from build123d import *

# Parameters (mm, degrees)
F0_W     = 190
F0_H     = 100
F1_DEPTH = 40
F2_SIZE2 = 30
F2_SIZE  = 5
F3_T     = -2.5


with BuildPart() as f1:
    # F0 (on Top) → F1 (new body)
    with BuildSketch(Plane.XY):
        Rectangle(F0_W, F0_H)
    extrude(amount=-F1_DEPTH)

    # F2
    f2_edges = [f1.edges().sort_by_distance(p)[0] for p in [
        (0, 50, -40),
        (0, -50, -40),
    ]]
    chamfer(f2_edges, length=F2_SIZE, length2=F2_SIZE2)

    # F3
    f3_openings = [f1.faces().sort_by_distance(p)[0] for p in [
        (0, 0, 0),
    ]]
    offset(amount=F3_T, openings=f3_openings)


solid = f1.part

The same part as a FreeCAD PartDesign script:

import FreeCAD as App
import Part
import Sketcher
Q = App.Units.Quantity


def edges_at(feature, points):
    """Names of the edges that pass closest to the given points."""
    edges = feature.Shape.Edges
    near = lambda p: min(range(len(edges)), key=lambda i: edges[i].distToShape(Part.Vertex(*p))[0])
    return sorted({f"Edge{near(p) + 1}" for p in points})


def faces_at(feature, points):
    """Names of the faces that lie closest to the given points."""
    faces = feature.Shape.Faces
    near = lambda p: min(range(len(faces)), key=lambda i: faces[i].distToShape(Part.Vertex(*p))[0])
    return sorted({f"Face{near(p) + 1}" for p in points})


def add_polygon(sketch, points):
    """Adds a closed chain of lines whose ends are joined by coincident constraints."""
    first, n = sketch.GeometryCount, len(points)
    for a, b in zip(points, points[1:] + points[:1]):
        sketch.addGeometry(Part.LineSegment(App.Vector(*a, 0), App.Vector(*b, 0)), False)
    for i in range(n):
        sketch.addConstraint(Sketcher.Constraint("Coincident", first + i, 2, first + (i + 1) % n, 1))

doc = App.newDocument("Part")
body = doc.addObject("PartDesign::Body", "Body")

sketch1 = body.newObject("Sketcher::SketchObject", "Sketch")
sketch1.AttachmentSupport = (doc.getObject("XY_Plane"), [""])
sketch1.MapMode = "FlatFace"
add_polygon(sketch1, [(-95, 50), (-95, -50), (95, -50), (95, 50)])
sketch1.addConstraint([
    Sketcher.Constraint("Vertical", 0),
    Sketcher.Constraint("Horizontal", 1),
    Sketcher.Constraint("Vertical", 2),
    Sketcher.Constraint("Horizontal", 3),
    Sketcher.Constraint("Symmetric", 0, 2, 2, 2, -1, 1),
    Sketcher.Constraint("DistanceX", 1, 1, 1, 2, Q("190 mm")),
    Sketcher.Constraint("DistanceY", 0, 2, 0, 1, Q("100 mm")),
])
pad1 = body.newObject("PartDesign::Pad", "Pad")
pad1.Profile = sketch1
pad1.Length = 40
pad1.Reversed = True
doc.recompute()

chamfer = body.newObject("PartDesign::Chamfer", "Chamfer")
chamfer.Base = (pad1, edges_at(pad1, [(0, 50, -40), (0, -50, -40)]))
chamfer.ChamferType = "Two distances"
chamfer.Size = 5
chamfer.Size2 = 30
doc.recompute()

thickness = body.newObject("PartDesign::Thickness", "Thickness")
thickness.Base = (chamfer, faces_at(chamfer, [(0, 0, 0)]))
thickness.Value = 2.5
thickness.Reversed = True
thickness.Join = "Arc"

doc.recompute()
